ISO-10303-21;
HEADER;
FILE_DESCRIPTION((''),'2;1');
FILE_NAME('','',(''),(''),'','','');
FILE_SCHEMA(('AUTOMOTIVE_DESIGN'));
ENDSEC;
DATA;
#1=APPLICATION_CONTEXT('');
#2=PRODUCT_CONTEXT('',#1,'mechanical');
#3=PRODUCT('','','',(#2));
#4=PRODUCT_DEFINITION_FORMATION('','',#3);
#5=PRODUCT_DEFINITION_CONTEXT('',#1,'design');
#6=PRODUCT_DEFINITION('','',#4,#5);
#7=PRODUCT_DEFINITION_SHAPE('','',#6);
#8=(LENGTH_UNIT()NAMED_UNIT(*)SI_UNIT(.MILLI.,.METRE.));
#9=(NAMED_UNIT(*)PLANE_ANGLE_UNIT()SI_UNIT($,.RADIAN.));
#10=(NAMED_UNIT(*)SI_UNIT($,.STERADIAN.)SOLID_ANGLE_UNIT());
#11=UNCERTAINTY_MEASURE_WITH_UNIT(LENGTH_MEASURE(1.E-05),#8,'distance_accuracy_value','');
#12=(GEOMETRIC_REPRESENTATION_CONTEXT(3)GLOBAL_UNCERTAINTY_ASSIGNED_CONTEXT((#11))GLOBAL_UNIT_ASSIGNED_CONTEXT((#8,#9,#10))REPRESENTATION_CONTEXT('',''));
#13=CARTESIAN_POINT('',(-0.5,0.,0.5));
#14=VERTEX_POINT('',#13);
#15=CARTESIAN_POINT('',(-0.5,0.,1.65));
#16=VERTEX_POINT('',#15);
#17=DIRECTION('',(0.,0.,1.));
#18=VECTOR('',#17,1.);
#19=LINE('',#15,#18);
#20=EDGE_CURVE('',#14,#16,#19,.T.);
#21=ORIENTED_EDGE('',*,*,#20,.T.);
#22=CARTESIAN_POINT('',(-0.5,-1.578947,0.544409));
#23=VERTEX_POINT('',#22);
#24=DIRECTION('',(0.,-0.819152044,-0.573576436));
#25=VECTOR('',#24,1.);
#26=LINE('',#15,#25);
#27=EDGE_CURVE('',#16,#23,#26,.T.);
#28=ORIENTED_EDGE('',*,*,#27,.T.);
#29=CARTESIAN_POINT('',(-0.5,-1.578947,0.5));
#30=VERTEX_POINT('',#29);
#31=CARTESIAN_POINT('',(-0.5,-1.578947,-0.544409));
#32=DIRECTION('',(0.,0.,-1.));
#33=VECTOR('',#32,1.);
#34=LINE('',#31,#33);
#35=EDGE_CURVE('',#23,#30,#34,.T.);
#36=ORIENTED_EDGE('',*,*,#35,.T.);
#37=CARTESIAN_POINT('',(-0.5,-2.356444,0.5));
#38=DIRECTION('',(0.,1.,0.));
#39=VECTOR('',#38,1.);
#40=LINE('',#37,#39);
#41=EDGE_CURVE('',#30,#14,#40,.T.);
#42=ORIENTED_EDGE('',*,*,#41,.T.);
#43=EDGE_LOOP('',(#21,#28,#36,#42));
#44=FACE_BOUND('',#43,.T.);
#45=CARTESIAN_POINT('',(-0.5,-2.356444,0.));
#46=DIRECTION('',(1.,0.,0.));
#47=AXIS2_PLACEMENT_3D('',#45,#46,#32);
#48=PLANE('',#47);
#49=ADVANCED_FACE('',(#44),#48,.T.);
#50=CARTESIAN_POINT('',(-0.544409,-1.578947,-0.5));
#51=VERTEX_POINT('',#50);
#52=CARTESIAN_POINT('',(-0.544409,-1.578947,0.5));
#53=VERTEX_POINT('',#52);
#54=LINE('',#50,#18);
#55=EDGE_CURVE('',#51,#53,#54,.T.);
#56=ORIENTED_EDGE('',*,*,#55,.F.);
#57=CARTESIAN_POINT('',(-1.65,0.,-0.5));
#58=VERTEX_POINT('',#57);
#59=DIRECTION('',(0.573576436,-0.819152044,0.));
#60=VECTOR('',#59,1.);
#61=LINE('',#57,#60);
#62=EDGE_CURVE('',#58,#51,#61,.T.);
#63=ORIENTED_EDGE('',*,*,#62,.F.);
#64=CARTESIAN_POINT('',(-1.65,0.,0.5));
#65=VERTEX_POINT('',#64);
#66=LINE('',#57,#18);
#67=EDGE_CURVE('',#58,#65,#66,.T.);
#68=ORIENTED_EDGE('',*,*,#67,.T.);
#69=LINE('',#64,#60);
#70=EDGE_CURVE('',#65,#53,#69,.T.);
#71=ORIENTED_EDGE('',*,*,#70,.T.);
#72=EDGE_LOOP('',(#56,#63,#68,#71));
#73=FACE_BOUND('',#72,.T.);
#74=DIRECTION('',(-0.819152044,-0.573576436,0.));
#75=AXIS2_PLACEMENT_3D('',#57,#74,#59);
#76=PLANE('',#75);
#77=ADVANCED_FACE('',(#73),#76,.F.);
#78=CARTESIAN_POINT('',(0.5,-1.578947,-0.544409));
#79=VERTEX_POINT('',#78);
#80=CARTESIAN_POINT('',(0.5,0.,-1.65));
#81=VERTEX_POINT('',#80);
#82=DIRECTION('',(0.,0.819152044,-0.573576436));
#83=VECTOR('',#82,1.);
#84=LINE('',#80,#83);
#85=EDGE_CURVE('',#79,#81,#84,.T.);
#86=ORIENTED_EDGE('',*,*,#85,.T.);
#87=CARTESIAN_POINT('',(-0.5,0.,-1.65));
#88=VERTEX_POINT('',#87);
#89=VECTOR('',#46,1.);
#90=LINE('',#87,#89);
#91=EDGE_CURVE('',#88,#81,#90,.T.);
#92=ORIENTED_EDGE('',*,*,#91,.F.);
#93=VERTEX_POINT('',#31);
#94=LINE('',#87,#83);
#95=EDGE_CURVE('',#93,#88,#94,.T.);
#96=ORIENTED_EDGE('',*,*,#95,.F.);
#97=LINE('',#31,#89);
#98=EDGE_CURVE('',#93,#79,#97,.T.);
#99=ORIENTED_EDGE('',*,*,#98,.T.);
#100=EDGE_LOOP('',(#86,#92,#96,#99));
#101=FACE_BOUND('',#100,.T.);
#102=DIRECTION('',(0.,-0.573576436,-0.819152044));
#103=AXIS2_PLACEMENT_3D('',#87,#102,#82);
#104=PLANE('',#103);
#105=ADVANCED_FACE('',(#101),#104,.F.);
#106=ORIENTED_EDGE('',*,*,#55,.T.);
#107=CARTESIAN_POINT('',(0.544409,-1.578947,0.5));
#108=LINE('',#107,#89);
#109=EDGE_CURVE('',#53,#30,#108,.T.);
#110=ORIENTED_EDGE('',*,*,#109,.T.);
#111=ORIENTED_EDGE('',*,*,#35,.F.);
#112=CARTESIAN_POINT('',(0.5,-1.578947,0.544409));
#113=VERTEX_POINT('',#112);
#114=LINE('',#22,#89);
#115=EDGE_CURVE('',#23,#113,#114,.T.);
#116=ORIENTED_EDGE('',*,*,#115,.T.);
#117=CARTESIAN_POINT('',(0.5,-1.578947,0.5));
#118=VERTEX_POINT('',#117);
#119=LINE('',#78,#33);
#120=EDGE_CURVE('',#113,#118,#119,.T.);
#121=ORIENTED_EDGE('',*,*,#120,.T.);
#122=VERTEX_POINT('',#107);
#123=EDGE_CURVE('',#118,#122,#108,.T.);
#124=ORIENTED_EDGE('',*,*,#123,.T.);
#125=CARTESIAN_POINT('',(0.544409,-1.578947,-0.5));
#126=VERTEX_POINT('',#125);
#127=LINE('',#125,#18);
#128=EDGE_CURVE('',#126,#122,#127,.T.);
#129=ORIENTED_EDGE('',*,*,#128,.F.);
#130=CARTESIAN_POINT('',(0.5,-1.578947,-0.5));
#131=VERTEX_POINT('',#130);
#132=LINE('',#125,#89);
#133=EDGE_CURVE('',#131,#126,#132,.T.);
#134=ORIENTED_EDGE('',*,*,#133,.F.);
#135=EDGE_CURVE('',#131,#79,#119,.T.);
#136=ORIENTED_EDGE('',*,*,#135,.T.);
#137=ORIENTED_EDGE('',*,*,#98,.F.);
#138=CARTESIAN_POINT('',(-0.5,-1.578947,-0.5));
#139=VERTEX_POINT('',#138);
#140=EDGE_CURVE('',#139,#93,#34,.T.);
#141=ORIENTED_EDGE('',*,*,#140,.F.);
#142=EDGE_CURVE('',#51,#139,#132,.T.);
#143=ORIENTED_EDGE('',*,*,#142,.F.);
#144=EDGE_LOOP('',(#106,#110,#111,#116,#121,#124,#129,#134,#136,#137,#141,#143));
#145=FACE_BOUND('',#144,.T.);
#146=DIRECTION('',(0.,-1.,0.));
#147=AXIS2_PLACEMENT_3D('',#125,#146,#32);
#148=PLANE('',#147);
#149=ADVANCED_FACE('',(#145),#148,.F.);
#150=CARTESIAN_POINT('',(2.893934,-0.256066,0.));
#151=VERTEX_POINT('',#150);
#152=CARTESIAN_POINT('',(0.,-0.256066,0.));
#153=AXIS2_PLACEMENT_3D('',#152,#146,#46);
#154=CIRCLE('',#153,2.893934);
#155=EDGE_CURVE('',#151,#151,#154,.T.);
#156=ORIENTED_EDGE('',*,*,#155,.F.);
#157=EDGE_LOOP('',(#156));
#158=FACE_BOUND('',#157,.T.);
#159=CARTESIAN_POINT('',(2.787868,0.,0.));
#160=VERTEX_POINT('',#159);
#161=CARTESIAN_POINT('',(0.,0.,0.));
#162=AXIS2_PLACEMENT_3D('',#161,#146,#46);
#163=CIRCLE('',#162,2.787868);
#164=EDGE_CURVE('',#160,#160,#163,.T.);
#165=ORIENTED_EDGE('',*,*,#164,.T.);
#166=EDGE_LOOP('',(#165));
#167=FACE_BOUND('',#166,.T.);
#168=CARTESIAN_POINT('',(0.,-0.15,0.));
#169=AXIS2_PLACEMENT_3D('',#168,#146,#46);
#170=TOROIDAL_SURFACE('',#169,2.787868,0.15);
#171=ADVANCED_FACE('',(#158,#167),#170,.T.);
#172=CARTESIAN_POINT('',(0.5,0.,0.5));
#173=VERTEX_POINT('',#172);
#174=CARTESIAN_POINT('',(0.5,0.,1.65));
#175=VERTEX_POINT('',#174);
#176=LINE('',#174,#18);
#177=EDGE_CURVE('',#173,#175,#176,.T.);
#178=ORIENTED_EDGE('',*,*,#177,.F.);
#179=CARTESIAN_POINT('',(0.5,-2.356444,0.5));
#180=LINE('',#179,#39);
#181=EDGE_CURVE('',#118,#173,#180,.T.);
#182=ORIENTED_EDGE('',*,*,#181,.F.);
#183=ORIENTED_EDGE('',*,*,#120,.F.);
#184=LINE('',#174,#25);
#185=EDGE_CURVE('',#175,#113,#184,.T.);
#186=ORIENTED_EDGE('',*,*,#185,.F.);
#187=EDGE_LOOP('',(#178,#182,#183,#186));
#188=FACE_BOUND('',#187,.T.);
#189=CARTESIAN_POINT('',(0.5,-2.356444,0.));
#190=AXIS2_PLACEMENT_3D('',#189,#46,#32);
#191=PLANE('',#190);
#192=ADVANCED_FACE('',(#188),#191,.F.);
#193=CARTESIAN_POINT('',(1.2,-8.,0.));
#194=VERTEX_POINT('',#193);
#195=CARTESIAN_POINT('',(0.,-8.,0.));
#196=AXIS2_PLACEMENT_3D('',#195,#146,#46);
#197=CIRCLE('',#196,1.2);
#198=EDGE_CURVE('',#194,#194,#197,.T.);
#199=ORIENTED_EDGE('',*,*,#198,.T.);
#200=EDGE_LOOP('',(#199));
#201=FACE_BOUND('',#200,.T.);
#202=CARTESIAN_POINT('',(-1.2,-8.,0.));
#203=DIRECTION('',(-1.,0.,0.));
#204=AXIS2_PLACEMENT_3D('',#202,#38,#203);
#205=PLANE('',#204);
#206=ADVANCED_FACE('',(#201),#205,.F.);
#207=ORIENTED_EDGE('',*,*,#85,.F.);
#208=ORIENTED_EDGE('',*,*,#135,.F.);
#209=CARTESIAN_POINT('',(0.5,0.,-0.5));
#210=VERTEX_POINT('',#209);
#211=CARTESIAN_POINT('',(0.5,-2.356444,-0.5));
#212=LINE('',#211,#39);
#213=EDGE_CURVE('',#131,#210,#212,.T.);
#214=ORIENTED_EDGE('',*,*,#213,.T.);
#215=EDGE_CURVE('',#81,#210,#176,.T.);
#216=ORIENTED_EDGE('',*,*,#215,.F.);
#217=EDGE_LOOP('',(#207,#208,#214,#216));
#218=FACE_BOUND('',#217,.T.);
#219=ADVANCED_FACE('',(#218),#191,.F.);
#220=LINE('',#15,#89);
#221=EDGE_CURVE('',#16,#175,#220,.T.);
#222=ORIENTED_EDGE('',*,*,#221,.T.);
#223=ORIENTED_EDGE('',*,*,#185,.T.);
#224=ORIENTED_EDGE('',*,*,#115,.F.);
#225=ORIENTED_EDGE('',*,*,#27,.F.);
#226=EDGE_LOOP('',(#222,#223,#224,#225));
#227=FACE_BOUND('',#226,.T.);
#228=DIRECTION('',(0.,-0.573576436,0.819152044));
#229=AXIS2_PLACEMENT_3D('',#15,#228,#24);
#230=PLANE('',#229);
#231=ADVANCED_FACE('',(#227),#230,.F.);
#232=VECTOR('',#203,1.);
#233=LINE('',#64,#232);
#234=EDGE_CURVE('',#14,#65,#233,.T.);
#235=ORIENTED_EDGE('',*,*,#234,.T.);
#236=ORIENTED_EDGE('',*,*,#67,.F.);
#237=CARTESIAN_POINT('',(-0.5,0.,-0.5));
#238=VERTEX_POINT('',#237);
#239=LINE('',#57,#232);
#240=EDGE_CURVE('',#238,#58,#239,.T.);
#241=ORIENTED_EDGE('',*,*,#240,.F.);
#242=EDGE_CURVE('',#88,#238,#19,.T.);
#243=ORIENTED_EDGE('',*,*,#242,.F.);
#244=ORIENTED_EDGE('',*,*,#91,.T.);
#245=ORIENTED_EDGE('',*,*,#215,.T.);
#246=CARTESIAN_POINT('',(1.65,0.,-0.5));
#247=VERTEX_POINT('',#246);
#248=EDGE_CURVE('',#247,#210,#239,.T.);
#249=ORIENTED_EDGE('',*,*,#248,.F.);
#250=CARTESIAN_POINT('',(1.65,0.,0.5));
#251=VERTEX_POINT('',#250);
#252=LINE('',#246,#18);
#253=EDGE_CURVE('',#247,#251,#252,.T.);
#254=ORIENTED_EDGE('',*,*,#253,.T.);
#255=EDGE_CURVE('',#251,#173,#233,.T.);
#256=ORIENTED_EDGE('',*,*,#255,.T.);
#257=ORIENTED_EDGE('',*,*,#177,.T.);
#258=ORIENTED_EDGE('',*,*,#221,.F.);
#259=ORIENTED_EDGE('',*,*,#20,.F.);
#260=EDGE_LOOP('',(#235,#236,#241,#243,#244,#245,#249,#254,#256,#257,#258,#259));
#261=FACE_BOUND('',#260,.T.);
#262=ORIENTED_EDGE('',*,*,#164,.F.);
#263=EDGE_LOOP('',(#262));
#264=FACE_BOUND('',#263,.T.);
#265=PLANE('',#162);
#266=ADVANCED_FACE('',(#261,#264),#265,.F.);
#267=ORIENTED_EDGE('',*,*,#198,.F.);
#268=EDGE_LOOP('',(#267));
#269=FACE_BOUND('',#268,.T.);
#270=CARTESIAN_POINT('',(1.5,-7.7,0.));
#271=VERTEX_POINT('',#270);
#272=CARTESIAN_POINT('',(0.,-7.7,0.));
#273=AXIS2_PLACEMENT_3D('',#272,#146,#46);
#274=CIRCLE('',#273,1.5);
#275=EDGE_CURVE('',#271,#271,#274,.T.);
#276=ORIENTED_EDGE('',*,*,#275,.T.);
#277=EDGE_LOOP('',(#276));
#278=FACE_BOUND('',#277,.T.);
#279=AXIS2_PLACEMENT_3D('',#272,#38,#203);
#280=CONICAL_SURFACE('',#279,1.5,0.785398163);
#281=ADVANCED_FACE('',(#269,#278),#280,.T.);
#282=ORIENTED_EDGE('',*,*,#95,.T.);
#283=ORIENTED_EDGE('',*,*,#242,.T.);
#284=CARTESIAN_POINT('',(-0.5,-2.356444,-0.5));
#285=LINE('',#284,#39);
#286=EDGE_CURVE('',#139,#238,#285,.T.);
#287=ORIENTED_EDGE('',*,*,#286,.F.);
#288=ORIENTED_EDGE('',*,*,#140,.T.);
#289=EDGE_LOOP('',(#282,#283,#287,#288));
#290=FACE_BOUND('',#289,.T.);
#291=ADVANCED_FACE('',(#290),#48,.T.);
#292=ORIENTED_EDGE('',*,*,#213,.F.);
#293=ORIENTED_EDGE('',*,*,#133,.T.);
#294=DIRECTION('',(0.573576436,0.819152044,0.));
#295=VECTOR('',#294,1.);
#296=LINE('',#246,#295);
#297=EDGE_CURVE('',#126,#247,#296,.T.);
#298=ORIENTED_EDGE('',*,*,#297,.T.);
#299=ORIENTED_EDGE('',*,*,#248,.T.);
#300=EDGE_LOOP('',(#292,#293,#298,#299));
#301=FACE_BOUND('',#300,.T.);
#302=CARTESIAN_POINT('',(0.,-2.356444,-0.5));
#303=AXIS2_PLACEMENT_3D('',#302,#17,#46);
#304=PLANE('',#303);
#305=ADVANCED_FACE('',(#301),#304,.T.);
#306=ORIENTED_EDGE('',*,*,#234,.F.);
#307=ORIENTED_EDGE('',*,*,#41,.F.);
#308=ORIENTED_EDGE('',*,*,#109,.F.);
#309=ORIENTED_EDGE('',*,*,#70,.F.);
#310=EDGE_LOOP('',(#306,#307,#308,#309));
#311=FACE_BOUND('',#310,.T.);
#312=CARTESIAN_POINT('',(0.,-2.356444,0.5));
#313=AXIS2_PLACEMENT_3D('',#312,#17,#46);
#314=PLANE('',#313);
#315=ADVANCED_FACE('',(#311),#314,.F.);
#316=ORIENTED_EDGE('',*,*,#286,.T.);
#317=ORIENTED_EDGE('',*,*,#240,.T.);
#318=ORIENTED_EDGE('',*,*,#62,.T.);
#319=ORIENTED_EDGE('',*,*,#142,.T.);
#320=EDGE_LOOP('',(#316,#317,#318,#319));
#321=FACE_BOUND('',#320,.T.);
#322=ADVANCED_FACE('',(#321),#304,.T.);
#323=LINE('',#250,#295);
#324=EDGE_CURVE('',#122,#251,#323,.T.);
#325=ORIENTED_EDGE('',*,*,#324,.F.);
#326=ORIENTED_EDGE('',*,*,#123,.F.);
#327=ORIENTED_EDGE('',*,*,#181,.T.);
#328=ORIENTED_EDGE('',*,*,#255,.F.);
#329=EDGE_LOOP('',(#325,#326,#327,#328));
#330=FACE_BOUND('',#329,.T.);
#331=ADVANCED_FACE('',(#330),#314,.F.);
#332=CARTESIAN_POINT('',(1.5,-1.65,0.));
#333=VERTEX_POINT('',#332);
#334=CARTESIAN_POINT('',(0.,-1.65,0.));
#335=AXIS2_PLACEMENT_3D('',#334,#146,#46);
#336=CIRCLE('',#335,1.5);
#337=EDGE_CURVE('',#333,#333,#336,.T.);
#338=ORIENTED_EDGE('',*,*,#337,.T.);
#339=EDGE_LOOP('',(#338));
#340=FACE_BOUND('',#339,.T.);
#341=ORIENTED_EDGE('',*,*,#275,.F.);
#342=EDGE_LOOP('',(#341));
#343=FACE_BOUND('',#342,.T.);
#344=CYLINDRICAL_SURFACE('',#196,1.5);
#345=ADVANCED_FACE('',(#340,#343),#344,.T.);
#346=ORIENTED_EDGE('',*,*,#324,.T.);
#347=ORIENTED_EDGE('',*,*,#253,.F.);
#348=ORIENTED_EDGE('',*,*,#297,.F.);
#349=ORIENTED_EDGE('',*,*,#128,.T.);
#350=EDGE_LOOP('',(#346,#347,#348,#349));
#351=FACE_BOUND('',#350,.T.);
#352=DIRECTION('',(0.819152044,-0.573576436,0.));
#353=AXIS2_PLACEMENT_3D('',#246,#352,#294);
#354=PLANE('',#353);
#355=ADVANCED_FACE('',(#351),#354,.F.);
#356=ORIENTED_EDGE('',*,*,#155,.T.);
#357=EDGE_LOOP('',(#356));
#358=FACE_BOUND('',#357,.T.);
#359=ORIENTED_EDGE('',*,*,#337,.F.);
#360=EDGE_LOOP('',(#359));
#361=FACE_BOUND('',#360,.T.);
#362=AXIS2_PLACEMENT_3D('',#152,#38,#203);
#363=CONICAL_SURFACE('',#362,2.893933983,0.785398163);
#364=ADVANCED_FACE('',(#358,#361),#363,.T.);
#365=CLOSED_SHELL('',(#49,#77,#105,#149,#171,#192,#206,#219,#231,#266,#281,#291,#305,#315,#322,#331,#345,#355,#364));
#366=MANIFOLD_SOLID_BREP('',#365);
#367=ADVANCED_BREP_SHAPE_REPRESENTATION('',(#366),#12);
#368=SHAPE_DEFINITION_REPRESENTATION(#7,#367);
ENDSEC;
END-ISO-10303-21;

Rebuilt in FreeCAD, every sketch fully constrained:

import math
import FreeCAD as App
import Part
import Sketcher
Q = App.Units.Quantity

doc = App.newDocument("Part")
params = doc.addObject("Spreadsheet::Sheet", "Params")
for row, (alias, value) in enumerate([
    ("sketch1_height", "8 mm"),
    ("sketch1_radius", "0.15 mm"),
    ("sketch1_width", "1.2 mm"),
    ("sketch1_height2", "6.05 mm"),
    ("revolution_angle", "360 deg"),
    ("sketch2_width", "3.3 mm"),
    ("pocket1_length", "1 mm"),
], start=1):
    params.set(f"A{row}", alias)
    params.set(f"B{row}", "=" + value)
    params.setAlias(f"B{row}", alias)

body = doc.addObject("PartDesign::Body", "Body")

sketch1 = body.newObject("Sketcher::SketchObject", "Sketch")
sketch1.AttachmentSupport = (doc.getObject("XY_Plane"), [""])
sketch1.MapMode = "FlatFace"
sketch1.addGeometry(Part.LineSegment(App.Vector(0, 0, 0), App.Vector(-2.79, 0, 0)), False)
sketch1.addGeometry(Part.ArcOfCircle(Part.Circle(App.Vector(-2.79, -0.15, 0), App.Vector(0, 0, 1), 0.15), math.radians(90), math.radians(225)), False)
sketch1.addGeometry(Part.LineSegment(App.Vector(-2.89, -0.26, 0), App.Vector(-1.5, -1.65, 0)), False)
sketch1.addGeometry(Part.LineSegment(App.Vector(-1.5, -1.65, 0), App.Vector(-1.5, -7.7, 0)), False)
sketch1.addGeometry(Part.LineSegment(App.Vector(-1.5, -7.7, 0), App.Vector(-1.2, -8, 0)), False)
sketch1.addGeometry(Part.LineSegment(App.Vector(-1.2, -8, 0), App.Vector(0, -8, 0)), False)
sketch1.addGeometry(Part.LineSegment(App.Vector(0, -8, 0), App.Vector(0, 0, 0)), False)
sketch1.addConstraint(Sketcher.Constraint("Tangent", 0, 2, 1, 1))
sketch1.addConstraint(Sketcher.Constraint("Tangent", 1, 2, 2, 1))
sketch1.addConstraint(Sketcher.Constraint("Coincident", 2, 2, 3, 1))
sketch1.addConstraint(Sketcher.Constraint("Coincident", 3, 2, 4, 1))
sketch1.addConstraint(Sketcher.Constraint("Coincident", 4, 2, 5, 1))
sketch1.addConstraint(Sketcher.Constraint("Coincident", 5, 2, 6, 1))
sketch1.addConstraint(Sketcher.Constraint("Coincident", 6, 2, 0, 1))
sketch1.addConstraint(Sketcher.Constraint("Horizontal", 0))
sketch1.addConstraint(Sketcher.Constraint("Vertical", 3))
sketch1.addConstraint(Sketcher.Constraint("Horizontal", 5))
sketch1.addConstraint(Sketcher.Constraint("Vertical", 6))
sketch1.addConstraint(Sketcher.Constraint("Coincident", 6, 2, -1, 1))
sketch1.addConstraint(Sketcher.Constraint("Parallel", 2, 4))
sketch1.addConstraint(Sketcher.Constraint("DistanceY", 6, 1, 6, 2, Q("8 mm")))
sketch1.addConstraint(Sketcher.Constraint("Angle", 2, Q("-45 deg")))
sketch1.addConstraint(Sketcher.Constraint("Radius", 1, Q("0.15 mm")))
sketch1.addConstraint(Sketcher.Constraint("DistanceX", 5, 1, 5, 2, Q("1.2 mm")))
sketch1.addConstraint(Sketcher.Constraint("DistanceY", 3, 2, 3, 1, Q("6.05 mm")))
sketch1.addConstraint(Sketcher.Constraint("DistanceX", 2, 2, -1, 1, Q("1.5 mm")))
sketch1.setExpression("Constraints[13]", "Params.sketch1_height")
sketch1.setExpression("Constraints[15]", "Params.sketch1_radius")
sketch1.setExpression("Constraints[16]", "Params.sketch1_width")
sketch1.setExpression("Constraints[17]", "Params.sketch1_height2")
revolution = body.newObject("PartDesign::Revolution", "Revolution")
revolution.Profile = sketch1
revolution.ReferenceAxis = (sketch1, ["V_Axis"])
revolution.setExpression("Angle", "Params.revolution_angle")

sketch2 = body.newObject("Sketcher::SketchObject", "Sketch001")
sketch2.AttachmentSupport = (doc.getObject("XY_Plane"), [""])
sketch2.MapMode = "FlatFace"
sketch2.addGeometry(Part.LineSegment(App.Vector(1.6, 0, 0), App.Vector(-1.6, 0, 0)), False)
sketch2.addGeometry(Part.LineSegment(App.Vector(-1.6, 0, 0), App.Vector(-0.5, -1.6, 0)), False)
sketch2.addGeometry(Part.LineSegment(App.Vector(-0.5, -1.6, 0), App.Vector(0.5, -1.6, 0)), False)
sketch2.addGeometry(Part.LineSegment(App.Vector(0.5, -1.6, 0), App.Vector(1.6, 0, 0)), False)
sketch2.addConstraint(Sketcher.Constraint("Coincident", 0, 2, 1, 1))
sketch2.addConstraint(Sketcher.Constraint("Coincident", 1, 2, 2, 1))
sketch2.addConstraint(Sketcher.Constraint("Coincident", 2, 2, 3, 1))
sketch2.addConstraint(Sketcher.Constraint("Coincident", 3, 2, 0, 1))
sketch2.addConstraint(Sketcher.Constraint("Horizontal", 0))
sketch2.addConstraint(Sketcher.Constraint("Horizontal", 2))
sketch2.addConstraint(Sketcher.Constraint("Symmetric", 0, 2, 3, 2, -1, 1))
sketch2.addConstraint(Sketcher.Constraint("Equal", 1, 3))
sketch2.addConstraint(Sketcher.Constraint("Angle", 1, Q("-55 deg")))
sketch2.addConstraint(Sketcher.Constraint("DistanceX", 0, 2, 0, 1, Q("3.3 mm")))
sketch2.addConstraint(Sketcher.Constraint("DistanceX", 2, 1, 2, 2, Q("1.088818 mm")))
sketch2.setExpression("Constraints[9]", "Params.sketch2_width")
pocket1 = body.newObject("PartDesign::Pocket", "Pocket")
pocket1.Profile = sketch2
pocket1.setExpression("Length", "Params.pocket1_length")
pocket1.Midplane = True
doc.recompute()

polarpattern = body.newObject("PartDesign::PolarPattern", "PolarPattern")
polarpattern.Originals = [pocket1]
polarpattern.Axis = (doc.getObject("Y_Axis"), [""])
polarpattern.Angle = 90
polarpattern.Occurrences = 2
body.Tip = polarpattern

doc.recompute()
